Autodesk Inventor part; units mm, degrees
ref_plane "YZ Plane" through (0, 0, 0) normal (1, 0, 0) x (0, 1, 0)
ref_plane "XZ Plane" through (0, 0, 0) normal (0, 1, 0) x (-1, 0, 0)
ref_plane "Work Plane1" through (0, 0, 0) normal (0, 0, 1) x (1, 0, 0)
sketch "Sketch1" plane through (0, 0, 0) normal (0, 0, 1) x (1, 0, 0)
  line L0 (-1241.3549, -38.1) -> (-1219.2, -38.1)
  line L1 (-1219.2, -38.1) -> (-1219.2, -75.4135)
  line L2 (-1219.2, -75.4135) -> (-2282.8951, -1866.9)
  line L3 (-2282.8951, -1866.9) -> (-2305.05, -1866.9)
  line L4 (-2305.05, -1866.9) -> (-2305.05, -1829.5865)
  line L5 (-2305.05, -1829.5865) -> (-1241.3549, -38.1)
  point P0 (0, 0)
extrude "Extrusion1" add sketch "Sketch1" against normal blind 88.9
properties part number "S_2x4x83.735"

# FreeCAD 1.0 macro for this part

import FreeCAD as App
import Part
import Sketcher
from FreeCAD import Vector
Q = App.Units.Quantity

doc = App.newDocument("Part")
body = doc.addObject("PartDesign::Body", "Body")

# Sketch on XY plane
sketch1 = body.newObject("Sketcher::SketchObject", "Sketch")
sketch1.AttachmentSupport = (doc.getObject("XY_Plane"), [""])
sketch1.MapMode = "FlatFace"
sketch1.addGeometry(Part.LineSegment(Vector(-1219, -38, 0), Vector(-1241, -38, 0)), False)
sketch1.addGeometry(Part.LineSegment(Vector(-1241, -38, 0), Vector(-2305, -1830, 0)), False)
sketch1.addGeometry(Part.LineSegment(Vector(-2305, -1830, 0), Vector(-2305, -1867, 0)), False)
sketch1.addGeometry(Part.LineSegment(Vector(-2305, -1867, 0), Vector(-2283, -1867, 0)), False)
sketch1.addGeometry(Part.LineSegment(Vector(-2283, -1867, 0), Vector(-1219, -75, 0)), False)
sketch1.addGeometry(Part.LineSegment(Vector(-1219, -75, 0), Vector(-1219, -38, 0)), False)
sketch1.addConstraint(Sketcher.Constraint("Coincident", 0, 2, 1, 1))
sketch1.addConstraint(Sketcher.Constraint("Coincident", 1, 2, 2, 1))
sketch1.addConstraint(Sketcher.Constraint("Coincident", 2, 2, 3, 1))
sketch1.addConstraint(Sketcher.Constraint("Coincident", 3, 2, 4, 1))
sketch1.addConstraint(Sketcher.Constraint("Coincident", 4, 2, 5, 1))
sketch1.addConstraint(Sketcher.Constraint("Coincident", 5, 2, 0, 1))
sketch1.addConstraint(Sketcher.Constraint("Horizontal", 0))
sketch1.addConstraint(Sketcher.Constraint("Vertical", 2))
sketch1.addConstraint(Sketcher.Constraint("Horizontal", 3))
sketch1.addConstraint(Sketcher.Constraint("Vertical", 5))
sketch1.addConstraint(Sketcher.Constraint("Parallel", 1, 4))
sketch1.addConstraint(Sketcher.Constraint("Equal", 0, 3))
sketch1.addConstraint(Sketcher.Constraint("DistanceX", 4, 2, -1, 1, Q("48 in")))
sketch1.addConstraint(Sketcher.Constraint("DistanceY", 2, 2, 0, 2, Q("72 in")))
sketch1.addConstraint(Sketcher.Constraint("DistanceY", 0, 2, -1, 1, Q("1.5 in")))
sketch1.addConstraint(Sketcher.Constraint("Angle", 1, Q("-120.6997 deg")))
sketch1.addConstraint(Sketcher.Constraint("DistanceX", 1, 2, -1, 1, Q("90.75 in")))
sketch1.addConstraint(Sketcher.Constraint("Distance", 1, Q("82.0266 in")))
pad1 = body.newObject("PartDesign::Pad", "Pad")
pad1.Profile = sketch1
pad1.Length = Q("3.5 in")
pad1.Reversed = True

doc.recompute()
